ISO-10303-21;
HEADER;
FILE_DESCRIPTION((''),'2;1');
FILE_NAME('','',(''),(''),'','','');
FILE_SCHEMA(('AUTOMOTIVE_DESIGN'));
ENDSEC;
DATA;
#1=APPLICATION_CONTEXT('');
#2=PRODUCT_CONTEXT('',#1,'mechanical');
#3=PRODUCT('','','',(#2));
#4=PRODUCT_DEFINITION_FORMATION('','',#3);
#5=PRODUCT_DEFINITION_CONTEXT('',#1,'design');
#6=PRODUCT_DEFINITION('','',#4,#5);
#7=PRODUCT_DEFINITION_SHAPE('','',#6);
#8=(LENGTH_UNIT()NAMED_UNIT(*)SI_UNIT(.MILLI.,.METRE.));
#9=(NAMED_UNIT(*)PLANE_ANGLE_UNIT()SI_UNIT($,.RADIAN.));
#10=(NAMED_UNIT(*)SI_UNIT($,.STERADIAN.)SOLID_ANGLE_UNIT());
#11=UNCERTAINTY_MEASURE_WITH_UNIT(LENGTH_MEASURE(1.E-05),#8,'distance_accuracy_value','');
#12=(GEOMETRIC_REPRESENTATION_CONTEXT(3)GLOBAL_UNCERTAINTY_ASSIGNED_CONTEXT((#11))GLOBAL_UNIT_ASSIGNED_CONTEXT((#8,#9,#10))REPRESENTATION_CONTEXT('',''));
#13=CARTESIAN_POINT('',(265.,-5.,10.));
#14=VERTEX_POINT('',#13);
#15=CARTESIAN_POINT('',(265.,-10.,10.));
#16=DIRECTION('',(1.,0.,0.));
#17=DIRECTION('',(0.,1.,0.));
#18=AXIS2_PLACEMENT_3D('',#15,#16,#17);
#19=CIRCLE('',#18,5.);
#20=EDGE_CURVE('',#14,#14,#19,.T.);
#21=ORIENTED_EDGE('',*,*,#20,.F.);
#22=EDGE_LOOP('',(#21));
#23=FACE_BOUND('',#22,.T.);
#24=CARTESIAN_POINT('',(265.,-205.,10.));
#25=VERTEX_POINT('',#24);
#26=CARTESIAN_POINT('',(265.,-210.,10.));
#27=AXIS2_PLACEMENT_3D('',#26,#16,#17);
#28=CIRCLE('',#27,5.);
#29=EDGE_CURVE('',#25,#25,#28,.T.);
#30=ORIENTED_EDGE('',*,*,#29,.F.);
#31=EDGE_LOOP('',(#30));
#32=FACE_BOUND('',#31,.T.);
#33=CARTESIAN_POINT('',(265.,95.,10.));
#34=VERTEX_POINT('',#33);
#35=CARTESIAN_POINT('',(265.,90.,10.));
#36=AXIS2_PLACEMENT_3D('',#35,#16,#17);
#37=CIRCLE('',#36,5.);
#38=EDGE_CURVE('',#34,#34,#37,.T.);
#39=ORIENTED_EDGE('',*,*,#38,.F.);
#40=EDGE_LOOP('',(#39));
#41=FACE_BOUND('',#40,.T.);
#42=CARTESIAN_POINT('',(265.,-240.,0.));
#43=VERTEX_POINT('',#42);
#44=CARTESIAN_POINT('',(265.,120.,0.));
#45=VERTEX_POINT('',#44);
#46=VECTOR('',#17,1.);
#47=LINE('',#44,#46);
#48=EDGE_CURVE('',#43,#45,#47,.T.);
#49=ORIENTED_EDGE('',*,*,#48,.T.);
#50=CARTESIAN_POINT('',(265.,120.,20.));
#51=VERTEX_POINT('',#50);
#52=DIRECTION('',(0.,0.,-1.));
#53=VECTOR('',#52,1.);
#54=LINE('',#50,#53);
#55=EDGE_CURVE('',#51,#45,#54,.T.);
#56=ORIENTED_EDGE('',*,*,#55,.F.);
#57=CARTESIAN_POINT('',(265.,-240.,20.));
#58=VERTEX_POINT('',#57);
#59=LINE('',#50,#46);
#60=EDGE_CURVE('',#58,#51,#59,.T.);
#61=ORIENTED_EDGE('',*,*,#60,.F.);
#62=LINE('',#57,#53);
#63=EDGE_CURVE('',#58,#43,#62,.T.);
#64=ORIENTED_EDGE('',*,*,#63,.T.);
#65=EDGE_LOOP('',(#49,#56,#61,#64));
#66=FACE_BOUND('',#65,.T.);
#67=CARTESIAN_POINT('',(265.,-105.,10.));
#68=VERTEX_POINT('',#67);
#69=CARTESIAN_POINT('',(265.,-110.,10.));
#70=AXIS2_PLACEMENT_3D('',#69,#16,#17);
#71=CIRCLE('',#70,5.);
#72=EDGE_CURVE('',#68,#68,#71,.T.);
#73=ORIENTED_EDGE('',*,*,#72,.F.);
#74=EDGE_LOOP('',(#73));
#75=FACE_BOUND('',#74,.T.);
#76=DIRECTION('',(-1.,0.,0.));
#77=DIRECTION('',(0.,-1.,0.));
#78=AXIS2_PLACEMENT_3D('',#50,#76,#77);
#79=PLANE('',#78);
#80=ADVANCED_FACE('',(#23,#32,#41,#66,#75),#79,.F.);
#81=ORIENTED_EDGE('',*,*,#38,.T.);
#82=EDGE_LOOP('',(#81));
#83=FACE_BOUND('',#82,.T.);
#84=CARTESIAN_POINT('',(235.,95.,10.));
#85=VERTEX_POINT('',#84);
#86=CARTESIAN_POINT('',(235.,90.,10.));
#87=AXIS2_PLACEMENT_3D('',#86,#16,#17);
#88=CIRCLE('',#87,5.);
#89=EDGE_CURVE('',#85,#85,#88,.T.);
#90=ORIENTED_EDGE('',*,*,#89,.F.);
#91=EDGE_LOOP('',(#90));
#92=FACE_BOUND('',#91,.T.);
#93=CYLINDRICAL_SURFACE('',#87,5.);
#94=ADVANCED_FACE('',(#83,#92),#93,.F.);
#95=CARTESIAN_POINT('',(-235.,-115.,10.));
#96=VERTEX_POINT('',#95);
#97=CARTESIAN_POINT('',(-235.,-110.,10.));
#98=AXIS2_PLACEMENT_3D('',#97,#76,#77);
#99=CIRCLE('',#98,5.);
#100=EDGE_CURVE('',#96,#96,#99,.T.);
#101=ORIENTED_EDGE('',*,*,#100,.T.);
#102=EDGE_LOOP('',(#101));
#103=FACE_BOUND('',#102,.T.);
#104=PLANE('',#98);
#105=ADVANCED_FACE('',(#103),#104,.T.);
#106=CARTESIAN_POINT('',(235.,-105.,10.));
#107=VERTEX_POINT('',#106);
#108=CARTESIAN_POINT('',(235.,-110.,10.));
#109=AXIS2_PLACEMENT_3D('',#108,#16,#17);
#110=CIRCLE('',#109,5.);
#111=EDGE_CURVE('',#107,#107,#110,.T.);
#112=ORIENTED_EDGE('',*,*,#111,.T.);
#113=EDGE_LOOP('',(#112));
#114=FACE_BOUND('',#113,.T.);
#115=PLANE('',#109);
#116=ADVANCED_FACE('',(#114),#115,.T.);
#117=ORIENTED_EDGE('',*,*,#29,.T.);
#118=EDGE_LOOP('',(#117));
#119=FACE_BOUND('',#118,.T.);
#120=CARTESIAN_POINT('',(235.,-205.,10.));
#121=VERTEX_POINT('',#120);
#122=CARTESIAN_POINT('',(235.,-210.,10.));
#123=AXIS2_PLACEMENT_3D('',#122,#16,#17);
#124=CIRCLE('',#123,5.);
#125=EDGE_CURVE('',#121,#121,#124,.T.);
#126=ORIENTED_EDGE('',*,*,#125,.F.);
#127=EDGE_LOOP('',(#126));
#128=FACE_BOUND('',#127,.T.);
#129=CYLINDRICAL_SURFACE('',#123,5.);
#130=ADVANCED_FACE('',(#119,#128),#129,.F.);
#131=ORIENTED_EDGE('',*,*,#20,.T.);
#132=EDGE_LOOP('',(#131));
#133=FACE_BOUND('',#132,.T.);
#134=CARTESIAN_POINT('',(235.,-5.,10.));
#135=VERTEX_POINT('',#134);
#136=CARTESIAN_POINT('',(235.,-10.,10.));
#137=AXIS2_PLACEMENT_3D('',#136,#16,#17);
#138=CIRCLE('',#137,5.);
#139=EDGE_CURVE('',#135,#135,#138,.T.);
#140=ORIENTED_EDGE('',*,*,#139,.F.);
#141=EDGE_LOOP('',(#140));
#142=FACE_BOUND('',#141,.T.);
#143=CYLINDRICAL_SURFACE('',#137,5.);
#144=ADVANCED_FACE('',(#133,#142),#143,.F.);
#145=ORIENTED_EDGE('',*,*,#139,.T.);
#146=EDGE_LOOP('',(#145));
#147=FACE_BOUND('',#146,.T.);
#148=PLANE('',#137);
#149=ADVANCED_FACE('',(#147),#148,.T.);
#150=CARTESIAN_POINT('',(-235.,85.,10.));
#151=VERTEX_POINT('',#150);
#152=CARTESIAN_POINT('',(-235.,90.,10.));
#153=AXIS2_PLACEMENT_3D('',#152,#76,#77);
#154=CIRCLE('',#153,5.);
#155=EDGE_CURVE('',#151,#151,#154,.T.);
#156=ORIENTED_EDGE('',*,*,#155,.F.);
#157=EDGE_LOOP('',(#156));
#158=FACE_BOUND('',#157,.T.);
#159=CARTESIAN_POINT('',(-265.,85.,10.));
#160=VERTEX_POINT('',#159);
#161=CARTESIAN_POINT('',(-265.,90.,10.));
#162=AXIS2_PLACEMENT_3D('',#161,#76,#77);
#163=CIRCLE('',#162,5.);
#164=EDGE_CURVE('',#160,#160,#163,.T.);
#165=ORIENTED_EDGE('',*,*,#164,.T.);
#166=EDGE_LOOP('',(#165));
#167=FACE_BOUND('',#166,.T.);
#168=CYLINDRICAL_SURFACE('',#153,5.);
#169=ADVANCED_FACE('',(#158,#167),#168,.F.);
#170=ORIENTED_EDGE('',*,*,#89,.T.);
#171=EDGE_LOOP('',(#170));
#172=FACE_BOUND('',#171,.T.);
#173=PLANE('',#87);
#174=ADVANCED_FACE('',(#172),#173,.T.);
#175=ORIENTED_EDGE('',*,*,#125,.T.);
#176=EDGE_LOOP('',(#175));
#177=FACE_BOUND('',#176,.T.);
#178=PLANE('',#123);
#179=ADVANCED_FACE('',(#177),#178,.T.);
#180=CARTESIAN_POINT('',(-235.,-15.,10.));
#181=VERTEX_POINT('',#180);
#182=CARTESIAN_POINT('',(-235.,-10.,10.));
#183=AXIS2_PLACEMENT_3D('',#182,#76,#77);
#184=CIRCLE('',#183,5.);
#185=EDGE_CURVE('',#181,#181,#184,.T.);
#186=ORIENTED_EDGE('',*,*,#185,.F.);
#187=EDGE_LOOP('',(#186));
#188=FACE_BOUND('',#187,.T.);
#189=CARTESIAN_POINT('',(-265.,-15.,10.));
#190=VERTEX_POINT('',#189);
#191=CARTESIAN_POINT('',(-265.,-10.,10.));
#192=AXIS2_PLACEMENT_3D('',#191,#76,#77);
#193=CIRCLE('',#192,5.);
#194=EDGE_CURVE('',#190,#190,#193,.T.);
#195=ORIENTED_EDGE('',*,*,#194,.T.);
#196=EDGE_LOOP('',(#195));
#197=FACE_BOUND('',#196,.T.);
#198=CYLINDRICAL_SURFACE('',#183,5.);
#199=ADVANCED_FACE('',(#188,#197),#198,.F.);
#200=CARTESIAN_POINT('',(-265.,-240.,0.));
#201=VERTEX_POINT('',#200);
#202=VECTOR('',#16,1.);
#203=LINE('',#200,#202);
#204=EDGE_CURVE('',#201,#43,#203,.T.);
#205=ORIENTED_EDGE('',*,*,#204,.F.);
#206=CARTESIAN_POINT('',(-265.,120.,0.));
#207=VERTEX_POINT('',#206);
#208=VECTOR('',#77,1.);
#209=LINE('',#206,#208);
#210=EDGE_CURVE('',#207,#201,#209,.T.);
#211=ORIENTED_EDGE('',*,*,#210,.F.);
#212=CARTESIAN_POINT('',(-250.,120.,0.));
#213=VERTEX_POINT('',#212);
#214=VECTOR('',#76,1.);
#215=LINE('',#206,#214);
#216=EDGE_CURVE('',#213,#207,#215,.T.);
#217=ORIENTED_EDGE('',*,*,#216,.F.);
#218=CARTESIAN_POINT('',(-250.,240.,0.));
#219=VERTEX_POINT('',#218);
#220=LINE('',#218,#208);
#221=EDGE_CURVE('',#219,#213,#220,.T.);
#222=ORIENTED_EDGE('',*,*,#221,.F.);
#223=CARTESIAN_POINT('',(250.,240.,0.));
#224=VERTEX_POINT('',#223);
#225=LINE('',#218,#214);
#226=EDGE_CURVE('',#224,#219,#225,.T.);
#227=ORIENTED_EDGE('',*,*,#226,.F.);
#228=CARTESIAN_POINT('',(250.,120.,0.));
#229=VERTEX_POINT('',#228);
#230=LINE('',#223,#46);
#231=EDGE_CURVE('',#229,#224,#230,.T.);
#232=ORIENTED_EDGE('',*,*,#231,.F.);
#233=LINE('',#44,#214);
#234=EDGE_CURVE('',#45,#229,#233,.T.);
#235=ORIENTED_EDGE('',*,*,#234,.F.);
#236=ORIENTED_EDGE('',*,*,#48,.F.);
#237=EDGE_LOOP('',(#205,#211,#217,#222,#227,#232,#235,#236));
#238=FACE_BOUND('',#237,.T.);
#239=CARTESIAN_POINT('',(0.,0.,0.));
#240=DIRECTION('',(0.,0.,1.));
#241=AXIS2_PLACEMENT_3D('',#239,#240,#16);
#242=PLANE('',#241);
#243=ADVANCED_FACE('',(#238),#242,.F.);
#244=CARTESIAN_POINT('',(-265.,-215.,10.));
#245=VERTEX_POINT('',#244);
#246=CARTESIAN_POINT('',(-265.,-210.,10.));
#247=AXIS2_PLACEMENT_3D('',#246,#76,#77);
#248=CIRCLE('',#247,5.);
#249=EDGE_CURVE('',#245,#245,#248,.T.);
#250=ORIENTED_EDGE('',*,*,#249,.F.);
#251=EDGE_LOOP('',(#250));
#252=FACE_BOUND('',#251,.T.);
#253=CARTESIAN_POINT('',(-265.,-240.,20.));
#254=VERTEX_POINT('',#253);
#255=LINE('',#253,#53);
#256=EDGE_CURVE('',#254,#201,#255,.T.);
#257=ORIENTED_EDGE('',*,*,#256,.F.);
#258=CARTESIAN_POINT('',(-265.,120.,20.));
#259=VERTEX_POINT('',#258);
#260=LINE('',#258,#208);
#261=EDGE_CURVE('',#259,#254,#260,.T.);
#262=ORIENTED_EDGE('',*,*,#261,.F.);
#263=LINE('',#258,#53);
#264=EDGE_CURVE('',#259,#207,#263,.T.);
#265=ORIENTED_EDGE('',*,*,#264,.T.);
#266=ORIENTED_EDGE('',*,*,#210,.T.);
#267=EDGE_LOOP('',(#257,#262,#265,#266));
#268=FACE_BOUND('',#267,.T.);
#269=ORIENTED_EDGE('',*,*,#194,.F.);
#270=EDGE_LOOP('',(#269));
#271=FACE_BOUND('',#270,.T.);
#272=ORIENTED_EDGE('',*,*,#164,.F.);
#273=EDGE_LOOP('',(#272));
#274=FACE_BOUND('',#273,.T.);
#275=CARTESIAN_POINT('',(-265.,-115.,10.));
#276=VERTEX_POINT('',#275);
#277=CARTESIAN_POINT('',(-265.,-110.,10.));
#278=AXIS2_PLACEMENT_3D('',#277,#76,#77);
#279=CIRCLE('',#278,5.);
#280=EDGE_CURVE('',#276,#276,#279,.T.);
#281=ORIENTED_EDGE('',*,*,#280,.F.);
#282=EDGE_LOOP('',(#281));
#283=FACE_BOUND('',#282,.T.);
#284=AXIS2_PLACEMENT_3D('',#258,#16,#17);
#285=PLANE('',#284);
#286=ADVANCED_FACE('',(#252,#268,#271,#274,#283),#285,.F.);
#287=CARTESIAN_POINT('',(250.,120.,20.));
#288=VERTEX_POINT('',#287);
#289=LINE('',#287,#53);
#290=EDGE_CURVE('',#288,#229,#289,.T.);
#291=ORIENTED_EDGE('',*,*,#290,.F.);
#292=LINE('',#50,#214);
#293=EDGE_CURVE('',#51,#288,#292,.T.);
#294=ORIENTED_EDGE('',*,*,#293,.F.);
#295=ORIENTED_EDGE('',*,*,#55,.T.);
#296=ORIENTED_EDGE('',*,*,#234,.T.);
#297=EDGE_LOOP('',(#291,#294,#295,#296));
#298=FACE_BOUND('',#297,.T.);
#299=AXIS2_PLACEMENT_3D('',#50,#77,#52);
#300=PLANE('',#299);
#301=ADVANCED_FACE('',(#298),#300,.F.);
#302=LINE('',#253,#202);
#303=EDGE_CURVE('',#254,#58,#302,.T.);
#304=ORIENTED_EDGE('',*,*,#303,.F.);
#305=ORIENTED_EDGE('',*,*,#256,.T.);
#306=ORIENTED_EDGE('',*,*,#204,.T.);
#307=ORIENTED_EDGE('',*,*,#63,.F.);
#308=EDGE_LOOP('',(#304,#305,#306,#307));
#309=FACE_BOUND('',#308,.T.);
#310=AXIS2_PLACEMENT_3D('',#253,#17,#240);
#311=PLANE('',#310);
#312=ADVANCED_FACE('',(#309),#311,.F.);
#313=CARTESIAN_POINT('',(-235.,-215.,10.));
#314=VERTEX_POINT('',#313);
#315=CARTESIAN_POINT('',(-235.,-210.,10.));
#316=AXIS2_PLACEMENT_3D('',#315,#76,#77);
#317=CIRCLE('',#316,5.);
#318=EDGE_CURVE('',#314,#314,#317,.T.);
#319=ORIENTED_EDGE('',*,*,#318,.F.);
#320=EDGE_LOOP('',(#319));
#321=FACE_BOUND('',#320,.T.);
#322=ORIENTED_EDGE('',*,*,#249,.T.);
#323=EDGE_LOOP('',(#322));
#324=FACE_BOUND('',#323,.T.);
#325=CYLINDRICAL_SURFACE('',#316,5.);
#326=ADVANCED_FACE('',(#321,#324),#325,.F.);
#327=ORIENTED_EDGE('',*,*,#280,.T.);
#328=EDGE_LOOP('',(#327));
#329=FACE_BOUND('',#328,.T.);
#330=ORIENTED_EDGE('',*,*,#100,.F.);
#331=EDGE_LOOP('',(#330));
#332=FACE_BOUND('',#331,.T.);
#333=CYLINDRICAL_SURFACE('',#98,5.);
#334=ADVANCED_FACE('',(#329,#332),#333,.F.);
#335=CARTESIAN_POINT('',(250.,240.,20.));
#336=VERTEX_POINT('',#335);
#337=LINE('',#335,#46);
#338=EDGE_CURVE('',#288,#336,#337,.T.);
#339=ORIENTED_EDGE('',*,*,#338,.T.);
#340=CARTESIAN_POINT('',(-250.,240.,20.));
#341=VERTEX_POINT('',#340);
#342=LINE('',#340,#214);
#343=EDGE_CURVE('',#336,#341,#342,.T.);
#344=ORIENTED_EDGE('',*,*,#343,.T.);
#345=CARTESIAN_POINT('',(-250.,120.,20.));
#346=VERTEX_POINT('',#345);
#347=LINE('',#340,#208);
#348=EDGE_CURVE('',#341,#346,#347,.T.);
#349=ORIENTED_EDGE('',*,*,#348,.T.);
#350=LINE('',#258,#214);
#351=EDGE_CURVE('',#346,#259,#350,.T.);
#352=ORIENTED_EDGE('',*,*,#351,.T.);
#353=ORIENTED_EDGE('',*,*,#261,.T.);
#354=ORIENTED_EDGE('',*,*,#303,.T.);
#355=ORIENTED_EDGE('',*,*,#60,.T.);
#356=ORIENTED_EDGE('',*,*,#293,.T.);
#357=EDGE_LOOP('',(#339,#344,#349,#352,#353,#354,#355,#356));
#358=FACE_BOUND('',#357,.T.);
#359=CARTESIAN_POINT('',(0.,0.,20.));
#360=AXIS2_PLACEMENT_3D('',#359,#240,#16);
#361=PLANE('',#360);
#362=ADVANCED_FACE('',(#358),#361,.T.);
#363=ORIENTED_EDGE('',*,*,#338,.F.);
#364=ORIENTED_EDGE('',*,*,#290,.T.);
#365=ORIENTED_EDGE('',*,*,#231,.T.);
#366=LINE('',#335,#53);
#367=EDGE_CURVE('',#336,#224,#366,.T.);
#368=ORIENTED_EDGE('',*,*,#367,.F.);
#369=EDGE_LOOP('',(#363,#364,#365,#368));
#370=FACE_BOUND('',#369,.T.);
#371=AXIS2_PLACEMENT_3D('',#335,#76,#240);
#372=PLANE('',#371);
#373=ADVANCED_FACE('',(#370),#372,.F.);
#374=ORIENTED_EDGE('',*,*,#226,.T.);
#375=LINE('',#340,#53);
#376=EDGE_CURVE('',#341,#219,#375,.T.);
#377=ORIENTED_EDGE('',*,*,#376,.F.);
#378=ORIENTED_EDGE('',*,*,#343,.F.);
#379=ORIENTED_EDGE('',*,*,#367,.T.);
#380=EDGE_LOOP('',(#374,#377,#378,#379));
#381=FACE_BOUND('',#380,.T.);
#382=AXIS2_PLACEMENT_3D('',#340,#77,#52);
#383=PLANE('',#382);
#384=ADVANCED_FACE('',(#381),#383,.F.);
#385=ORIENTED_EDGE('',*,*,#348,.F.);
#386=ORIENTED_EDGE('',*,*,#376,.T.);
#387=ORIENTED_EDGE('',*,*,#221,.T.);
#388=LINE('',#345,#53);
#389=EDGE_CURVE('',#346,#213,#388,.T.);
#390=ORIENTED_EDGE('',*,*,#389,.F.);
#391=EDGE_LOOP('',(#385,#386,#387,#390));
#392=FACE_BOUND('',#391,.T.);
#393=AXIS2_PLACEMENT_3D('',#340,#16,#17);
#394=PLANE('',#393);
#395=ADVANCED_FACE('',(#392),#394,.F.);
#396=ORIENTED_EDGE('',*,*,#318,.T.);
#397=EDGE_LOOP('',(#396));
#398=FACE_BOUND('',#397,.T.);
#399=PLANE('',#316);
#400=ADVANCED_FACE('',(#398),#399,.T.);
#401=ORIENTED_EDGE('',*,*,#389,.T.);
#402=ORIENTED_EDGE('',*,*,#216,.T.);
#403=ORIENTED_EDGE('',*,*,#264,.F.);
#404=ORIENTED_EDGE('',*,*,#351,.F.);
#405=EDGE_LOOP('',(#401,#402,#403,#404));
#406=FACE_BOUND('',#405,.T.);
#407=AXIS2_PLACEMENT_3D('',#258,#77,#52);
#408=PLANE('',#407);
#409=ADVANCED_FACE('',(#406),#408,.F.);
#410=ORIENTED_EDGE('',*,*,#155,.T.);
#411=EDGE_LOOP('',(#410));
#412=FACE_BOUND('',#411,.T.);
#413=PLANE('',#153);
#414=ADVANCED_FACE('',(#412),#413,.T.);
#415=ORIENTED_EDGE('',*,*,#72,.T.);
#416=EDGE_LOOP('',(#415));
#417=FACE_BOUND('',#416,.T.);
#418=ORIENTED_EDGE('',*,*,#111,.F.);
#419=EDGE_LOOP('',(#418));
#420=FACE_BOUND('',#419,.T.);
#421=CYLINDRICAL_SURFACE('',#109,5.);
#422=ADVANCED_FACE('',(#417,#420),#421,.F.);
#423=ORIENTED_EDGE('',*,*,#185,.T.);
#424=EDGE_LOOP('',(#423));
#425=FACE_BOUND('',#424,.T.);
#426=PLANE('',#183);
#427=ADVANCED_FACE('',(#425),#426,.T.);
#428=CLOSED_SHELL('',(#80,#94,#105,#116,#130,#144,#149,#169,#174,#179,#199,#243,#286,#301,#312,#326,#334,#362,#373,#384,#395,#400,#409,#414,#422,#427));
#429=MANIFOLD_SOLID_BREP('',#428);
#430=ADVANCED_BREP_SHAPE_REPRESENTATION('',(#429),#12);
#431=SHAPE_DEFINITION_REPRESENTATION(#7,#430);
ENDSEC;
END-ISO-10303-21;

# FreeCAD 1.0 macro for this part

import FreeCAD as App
import Part
import Sketcher

V = App.Vector
Q = App.Units.Quantity


def add_polygon(sketch, points):
    """Adds a closed chain of lines whose ends are joined by coincident constraints."""
    first, n = sketch.GeometryCount, len(points)
    for a, b in zip(points, points[1:] + points[:1]):
        sketch.addGeometry(Part.LineSegment(App.Vector(*a, 0), App.Vector(*b, 0)), False)
    for i in range(n):
        sketch.addConstraint(Sketcher.Constraint("Coincident", first + i, 2, first + (i + 1) % n, 1))

doc = App.newDocument("Part")
body = doc.addObject("PartDesign::Body", "Body")

# Sketch on XY plane
sketch1 = body.newObject("Sketcher::SketchObject", "Sketch")
sketch1.AttachmentSupport = (doc.getObject("XY_Plane"), [""])
sketch1.MapMode = "FlatFace"
add_polygon(sketch1, [(250, 240), (-250, 240), (-250, 120), (-265, 120), (-265, -240), (265, -240), (265, 120), (250, 120)])  # lines 0-7
sketch1.addConstraint([
    Sketcher.Constraint("Horizontal", 0),
    Sketcher.Constraint("Vertical", 1),
    Sketcher.Constraint("Horizontal", 2),
    Sketcher.Constraint("Vertical", 3),
    Sketcher.Constraint("Horizontal", 4),
    Sketcher.Constraint("Vertical", 5),
    Sketcher.Constraint("Horizontal", 6),
    Sketcher.Constraint("Vertical", 7),
    Sketcher.Constraint("Symmetric", 2, 2, 5, 2, -2),
    Sketcher.Constraint("Equal", 2, 6),
    Sketcher.Constraint("DistanceX", 0, 2, 0, 1, Q("500 mm")),
    Sketcher.Constraint("DistanceX", 2, 2, 2, 1, Q("15 mm")),
    Sketcher.Constraint("DistanceY", 1, 2, 1, 1, Q("120 mm")),
    Sketcher.Constraint("DistanceY", 3, 2, 3, 1, Q("360 mm")),
    Sketcher.Constraint("DistanceY", -1, 1, 0, 2, Q("240 mm")),
])
pad1 = body.newObject("PartDesign::Pad", "Pad")
pad1.Profile = sketch1
pad1.Length = 20

# Sketch on YZ plane
sketch2 = body.newObject("Sketcher::SketchObject", "Sketch001")
sketch2.AttachmentSupport = (doc.getObject("YZ_Plane"), [""])
sketch2.MapMode = "FlatFace"
sketch2.AttachmentOffset = App.Placement(V(0, 0, 265), App.Rotation())
sketch2.addGeometry([
    Part.Circle(V(-210, 10, 0), V(0, 0, 1), 5),
    Part.Circle(V(-110, 10, 0), V(0, 0, 1), 5),
    Part.Circle(V(-10, 10, 0), V(0, 0, 1), 5),
    Part.Circle(V(90, 10, 0), V(0, 0, 1), 5),
], False)
sketch2.addConstraint([
    Sketcher.Constraint("Equal", 0, 1),
    Sketcher.Constraint("Equal", 1, 2),
    Sketcher.Constraint("Equal", 2, 3),
    Sketcher.Constraint("Horizontal", 0, 3, 1, 3),
    Sketcher.Constraint("Horizontal", 1, 3, 2, 3),
    Sketcher.Constraint("Horizontal", 2, 3, 3, 3),
    Sketcher.Constraint("Diameter", 0, Q("10 mm")),
    Sketcher.Constraint("DistanceX", 0, 3, -1, 1, Q("210 mm")),
    Sketcher.Constraint("DistanceY", -1, 1, 0, 3, Q("10 mm")),
    Sketcher.Constraint("DistanceX", 1, 3, -1, 1, Q("110 mm")),
    Sketcher.Constraint("DistanceX", 2, 3, -1, 1, Q("10 mm")),
    Sketcher.Constraint("DistanceX", -1, 1, 3, 3, Q("90 mm")),
])
pocket1 = body.newObject("PartDesign::Pocket", "Pocket")
pocket1.Profile = sketch2
pocket1.Length = 30

# Sketch on YZ plane
sketch3 = body.newObject("Sketcher::SketchObject", "Sketch002")
sketch3.AttachmentSupport = (doc.getObject("YZ_Plane"), [""])
sketch3.MapMode = "FlatFace"
sketch3.AttachmentOffset = App.Placement(V(0, 0, -235), App.Rotation())
sketch3.addGeometry([
    Part.Circle(V(-210, 10, 0), V(0, 0, 1), 5),
    Part.Circle(V(-110, 10, 0), V(0, 0, 1), 5),
    Part.Circle(V(-10, 10, 0), V(0, 0, 1), 5),
    Part.Circle(V(90, 10, 0), V(0, 0, 1), 5),
], False)
sketch3.addConstraint([
    Sketcher.Constraint("Equal", 0, 1),
    Sketcher.Constraint("Equal", 1, 2),
    Sketcher.Constraint("Equal", 2, 3),
    Sketcher.Constraint("Horizontal", 0, 3, 1, 3),
    Sketcher.Constraint("Horizontal", 1, 3, 2, 3),
    Sketcher.Constraint("Horizontal", 2, 3, 3, 3),
    Sketcher.Constraint("Diameter", 0, Q("10 mm")),
    Sketcher.Constraint("DistanceX", 0, 3, -1, 1, Q("210 mm")),
    Sketcher.Constraint("DistanceY", -1, 1, 0, 3, Q("10 mm")),
    Sketcher.Constraint("DistanceX", 1, 3, -1, 1, Q("110 mm")),
    Sketcher.Constraint("DistanceX", 2, 3, -1, 1, Q("10 mm")),
    Sketcher.Constraint("DistanceX", -1, 1, 3, 3, Q("90 mm")),
])
pocket2 = body.newObject("PartDesign::Pocket", "Pocket001")
pocket2.Profile = sketch3
pocket2.Length = 30

doc.recompute()
